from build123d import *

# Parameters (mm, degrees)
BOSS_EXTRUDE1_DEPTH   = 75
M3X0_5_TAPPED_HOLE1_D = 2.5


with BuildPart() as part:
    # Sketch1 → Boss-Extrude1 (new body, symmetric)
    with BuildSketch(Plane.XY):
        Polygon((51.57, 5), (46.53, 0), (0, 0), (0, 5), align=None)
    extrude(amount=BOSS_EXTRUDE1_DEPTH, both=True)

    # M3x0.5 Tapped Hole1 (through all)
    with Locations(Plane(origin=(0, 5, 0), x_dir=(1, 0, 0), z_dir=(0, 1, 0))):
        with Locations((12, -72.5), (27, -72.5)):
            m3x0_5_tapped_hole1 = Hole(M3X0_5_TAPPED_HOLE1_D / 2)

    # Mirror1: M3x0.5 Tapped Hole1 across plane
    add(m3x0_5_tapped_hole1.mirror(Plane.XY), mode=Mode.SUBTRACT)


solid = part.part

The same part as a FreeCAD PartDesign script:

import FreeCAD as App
import Part
import Sketcher
Q = App.Units.Quantity

doc = App.newDocument("Part")
params = doc.addObject("Spreadsheet::Sheet", "Params")
for row, (alias, value) in enumerate([
    ("sketch1_height", "5 mm"),
    ("sketch1_width", "51.57 mm"),
    ("sketch1_width2", "46.53 mm"),
    ("pad1_length", "150 mm"),
    ("sketch2_diameter", "2.5 mm"),
    ("hole_diameter", "2.5 mm"),
], start=1):
    params.set(f"A{row}", alias)
    params.set(f"B{row}", "=" + value)
    params.setAlias(f"B{row}", alias)

body = doc.addObject("PartDesign::Body", "Body")

# Sketch on XY plane
sketch1 = body.newObject("Sketcher::SketchObject", "Sketch")
sketch1.AttachmentSupport = (doc.getObject("XY_Plane"), [""])
sketch1.MapMode = "FlatFace"
sketch1.addGeometry(Part.LineSegment(App.Vector(47, 0, 0), App.Vector(52, 5, 0)), False)
sketch1.addGeometry(Part.LineSegment(App.Vector(52, 5, 0), App.Vector(0, 5, 0)), False)
sketch1.addGeometry(Part.LineSegment(App.Vector(0, 5, 0), App.Vector(0, 0, 0)), False)
sketch1.addGeometry(Part.LineSegment(App.Vector(0, 0, 0), App.Vector(47, 0, 0)), False)
sketch1.addConstraint(Sketcher.Constraint("Coincident", 0, 2, 1, 1))
sketch1.addConstraint(Sketcher.Constraint("Coincident", 1, 2, 2, 1))
sketch1.addConstraint(Sketcher.Constraint("Coincident", 2, 2, 3, 1))
sketch1.addConstraint(Sketcher.Constraint("Coincident", 3, 2, 0, 1))
sketch1.addConstraint(Sketcher.Constraint("Horizontal", 1))
sketch1.addConstraint(Sketcher.Constraint("Vertical", 2))
sketch1.addConstraint(Sketcher.Constraint("Horizontal", 3))
sketch1.addConstraint(Sketcher.Constraint("Coincident", 2, 2, -1, 1))
sketch1.addConstraint(Sketcher.Constraint("DistanceY", 2, 2, 2, 1, Q("5 mm")))
sketch1.addConstraint(Sketcher.Constraint("DistanceX", 1, 2, 1, 1, Q("51.57 mm")))
sketch1.addConstraint(Sketcher.Constraint("DistanceX", 3, 1, 3, 2, Q("46.53 mm")))
sketch1.setExpression("Constraints[8]", "Params.sketch1_height")
sketch1.setExpression("Constraints[9]", "Params.sketch1_width")
sketch1.setExpression("Constraints[10]", "Params.sketch1_width2")
pad1 = body.newObject("PartDesign::Pad", "Pad")
pad1.Profile = sketch1
pad1.setExpression("Length", "Params.pad1_length")
pad1.Midplane = True

# Sketch on XZ plane
sketch2 = body.newObject("Sketcher::SketchObject", "Sketch001")
sketch2.AttachmentSupport = (doc.getObject("XZ_Plane"), [""])
sketch2.MapMode = "FlatFace"
sketch2.AttachmentOffset = App.Placement(App.Vector(0, 0, -5), App.Rotation())
sketch2.addGeometry(Part.Circle(App.Vector(12, 72.5, 0), App.Vector(0, 0, 1), 1.2), False)
sketch2.addGeometry(Part.Circle(App.Vector(27, 72.5, 0), App.Vector(0, 0, 1), 1.2), False)
sketch2.addConstraint(Sketcher.Constraint("Equal", 0, 1))
sketch2.addConstraint(Sketcher.Constraint("Horizontal", 0, 3, 1, 3))
sketch2.addConstraint(Sketcher.Constraint("Diameter", 0, Q("2.5 mm")))
sketch2.addConstraint(Sketcher.Constraint("DistanceX", -1, 1, 0, 3, Q("12 mm")))
sketch2.addConstraint(Sketcher.Constraint("DistanceX", -1, 1, 1, 3, Q("27 mm")))
sketch2.addConstraint(Sketcher.Constraint("DistanceY", -1, 1, 0, 3, Q("72.5 mm")))
sketch2.setExpression("Constraints[2]", "Params.sketch2_diameter")
doc.recompute()
hole = body.newObject("PartDesign::Hole", "Hole")
hole.Profile = sketch2
hole.ThreadType = "None"
hole.setExpression("Diameter", "Params.hole_diameter")
hole.DepthType = "ThroughAll"
hole.Reversed = True
doc.recompute()

mirrored = body.newObject("PartDesign::Mirrored", "Mirrored")
mirrored.Originals = [hole]
mirrored.MirrorPlane = (doc.getObject("XY_Plane"), [""])
body.Tip = mirrored

doc.recompute()
